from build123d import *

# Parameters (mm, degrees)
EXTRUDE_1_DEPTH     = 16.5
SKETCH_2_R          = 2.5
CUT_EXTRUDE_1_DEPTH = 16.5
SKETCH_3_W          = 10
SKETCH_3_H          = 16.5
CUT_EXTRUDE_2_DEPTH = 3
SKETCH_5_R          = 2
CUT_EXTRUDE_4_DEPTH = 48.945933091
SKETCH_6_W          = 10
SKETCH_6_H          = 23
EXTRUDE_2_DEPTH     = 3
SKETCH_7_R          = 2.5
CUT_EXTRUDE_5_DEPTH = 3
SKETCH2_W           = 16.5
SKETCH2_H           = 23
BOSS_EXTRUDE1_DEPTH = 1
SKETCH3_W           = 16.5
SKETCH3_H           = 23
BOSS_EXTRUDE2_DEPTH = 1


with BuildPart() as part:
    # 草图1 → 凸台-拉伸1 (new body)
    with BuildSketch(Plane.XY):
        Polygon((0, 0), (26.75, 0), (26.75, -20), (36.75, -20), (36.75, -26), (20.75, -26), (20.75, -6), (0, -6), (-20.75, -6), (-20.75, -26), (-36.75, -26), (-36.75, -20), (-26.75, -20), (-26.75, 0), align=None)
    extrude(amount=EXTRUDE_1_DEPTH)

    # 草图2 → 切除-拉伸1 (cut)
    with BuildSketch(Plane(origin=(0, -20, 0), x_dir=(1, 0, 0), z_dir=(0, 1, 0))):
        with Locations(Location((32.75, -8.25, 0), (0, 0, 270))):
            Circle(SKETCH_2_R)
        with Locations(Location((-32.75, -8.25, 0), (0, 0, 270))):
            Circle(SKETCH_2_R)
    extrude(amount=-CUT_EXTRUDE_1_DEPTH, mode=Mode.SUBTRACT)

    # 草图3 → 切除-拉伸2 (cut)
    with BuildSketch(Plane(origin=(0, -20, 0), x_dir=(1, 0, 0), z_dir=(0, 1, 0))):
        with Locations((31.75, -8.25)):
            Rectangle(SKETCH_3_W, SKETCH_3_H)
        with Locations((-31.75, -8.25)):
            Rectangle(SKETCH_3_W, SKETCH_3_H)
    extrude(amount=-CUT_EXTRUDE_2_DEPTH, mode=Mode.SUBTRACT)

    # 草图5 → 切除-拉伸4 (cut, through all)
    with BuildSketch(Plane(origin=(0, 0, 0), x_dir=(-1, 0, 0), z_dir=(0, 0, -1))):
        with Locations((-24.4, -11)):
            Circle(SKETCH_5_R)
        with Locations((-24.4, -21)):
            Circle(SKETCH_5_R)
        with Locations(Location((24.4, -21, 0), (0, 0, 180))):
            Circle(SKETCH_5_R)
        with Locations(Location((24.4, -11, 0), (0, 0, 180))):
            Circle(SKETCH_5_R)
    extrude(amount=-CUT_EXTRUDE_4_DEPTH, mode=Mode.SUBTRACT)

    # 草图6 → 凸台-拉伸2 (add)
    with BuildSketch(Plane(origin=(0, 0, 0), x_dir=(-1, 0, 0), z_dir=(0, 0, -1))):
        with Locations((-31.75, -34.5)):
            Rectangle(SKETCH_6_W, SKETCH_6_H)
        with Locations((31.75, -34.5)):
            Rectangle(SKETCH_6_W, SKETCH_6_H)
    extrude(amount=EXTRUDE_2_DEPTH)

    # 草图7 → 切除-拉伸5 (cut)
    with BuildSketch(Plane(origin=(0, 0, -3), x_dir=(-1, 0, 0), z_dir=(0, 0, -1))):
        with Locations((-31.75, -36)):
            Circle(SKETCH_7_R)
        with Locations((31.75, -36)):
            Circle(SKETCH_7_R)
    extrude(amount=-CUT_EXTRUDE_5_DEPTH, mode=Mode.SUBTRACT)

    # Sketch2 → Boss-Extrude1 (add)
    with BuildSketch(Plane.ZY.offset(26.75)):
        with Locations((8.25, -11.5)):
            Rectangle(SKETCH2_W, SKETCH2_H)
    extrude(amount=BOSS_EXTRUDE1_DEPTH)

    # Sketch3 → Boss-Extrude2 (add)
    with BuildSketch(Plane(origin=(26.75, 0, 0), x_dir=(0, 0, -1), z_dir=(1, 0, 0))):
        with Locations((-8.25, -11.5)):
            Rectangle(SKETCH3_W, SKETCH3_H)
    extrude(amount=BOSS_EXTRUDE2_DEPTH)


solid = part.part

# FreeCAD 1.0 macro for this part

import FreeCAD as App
import Part
import Sketcher
from FreeCAD import Vector
Q = App.Units.Quantity


def add_polygon(sketch, points):
    """Adds a closed chain of lines whose ends are joined by coincident constraints."""
    first, n = sketch.GeometryCount, len(points)
    for a, b in zip(points, points[1:] + points[:1]):
        sketch.addGeometry(Part.LineSegment(App.Vector(*a, 0), App.Vector(*b, 0)), False)
    for i in range(n):
        sketch.addConstraint(Sketcher.Constraint("Coincident", first + i, 2, first + (i + 1) % n, 1))

doc = App.newDocument("Part")
body = doc.addObject("PartDesign::Body", "Body")

sketch1 = body.newObject("Sketcher::SketchObject", "Sketch")
sketch1.AttachmentSupport = (doc.getObject("XY_Plane"), [""])
sketch1.MapMode = "FlatFace"
add_polygon(sketch1, [(27, 0), (-27, 0), (-27, -20), (-37, -20), (-37, -26), (-21, -26), (-21, -6), (21, -6), (21, -26), (37, -26), (37, -20), (27, -20)])
sketch1.addConstraint([
    Sketcher.Constraint("Horizontal", 0),
    Sketcher.Constraint("Vertical", 1),
    Sketcher.Constraint("Horizontal", 2),
    Sketcher.Constraint("Vertical", 3),
    Sketcher.Constraint("Horizontal", 4),
    Sketcher.Constraint("Vertical", 5),
    Sketcher.Constraint("Horizontal", 6),
    Sketcher.Constraint("Vertical", 7),
    Sketcher.Constraint("Horizontal", 8),
    Sketcher.Constraint("Vertical", 9),
    Sketcher.Constraint("Horizontal", 10),
    Sketcher.Constraint("Vertical", 11),
    Sketcher.Constraint("Symmetric", 0, 2, 11, 2, -1, 1),
    Sketcher.Constraint("Symmetric", 4, 2, 7, 2, -2),
    Sketcher.Constraint("Symmetric", 2, 2, 9, 2, -2),
    Sketcher.Constraint("Equal", 1, 5),
    Sketcher.Constraint("DistanceX", 2, 2, 2, 1, Q("10 mm")),
    Sketcher.Constraint("DistanceX", 4, 1, 4, 2, Q("16 mm")),
    Sketcher.Constraint("DistanceY", 1, 2, 1, 1, Q("20 mm")),
    Sketcher.Constraint("DistanceY", 3, 2, 3, 1, Q("6 mm")),
    Sketcher.Constraint("DistanceX", 0, 2, 0, 1, Q("53.5 mm")),
])
pad1 = body.newObject("PartDesign::Pad", "Pad")
pad1.Profile = sketch1
pad1.Length = 16.5

sketch2 = body.newObject("Sketcher::SketchObject", "Sketch001")
sketch2.AttachmentSupport = (doc.getObject("XZ_Plane"), [""])
sketch2.MapMode = "FlatFace"
sketch2.AttachmentOffset = App.Placement(Vector(0, 0, 20), App.Rotation())
sketch2.addGeometry([
    Part.Circle(Vector(32.8, 8.2, 0), Vector(0, 0, 1), 2.5),
    Part.Circle(Vector(-32.8, 8.2, 0), Vector(0, 0, 1), 2.5),
], False)
sketch2.addConstraint([
    Sketcher.Constraint("Equal", 0, 1),
    Sketcher.Constraint("Symmetric", 0, 3, 1, 3, -2),
    Sketcher.Constraint("Diameter", 0, Q("5 mm")),
    Sketcher.Constraint("DistanceX", 1, 3, 0, 3, Q("65.5 mm")),
    Sketcher.Constraint("DistanceY", -1, 1, 0, 3, Q("8.25 mm")),
])
pocket1 = body.newObject("PartDesign::Pocket", "Pocket")
pocket1.Profile = sketch2
pocket1.Length = 16.5
pocket1.Reversed = True

sketch3 = body.newObject("Sketcher::SketchObject", "Sketch002")
sketch3.AttachmentSupport = (doc.getObject("XZ_Plane"), [""])
sketch3.MapMode = "FlatFace"
sketch3.AttachmentOffset = App.Placement(Vector(0, 0, 20), App.Rotation())
add_polygon(sketch3, [(27, 0), (27, 16), (37, 16), (37, 0)])
add_polygon(sketch3, [(-37, 0), (-37, 16), (-27, 16), (-27, 0)])
sketch3.addConstraint([
    Sketcher.Constraint("Vertical", 0),
    Sketcher.Constraint("Horizontal", 1),
    Sketcher.Constraint("Vertical", 2),
    Sketcher.Constraint("Horizontal", 3),
    Sketcher.Constraint("Vertical", 4),
    Sketcher.Constraint("Horizontal", 5),
    Sketcher.Constraint("Vertical", 6),
    Sketcher.Constraint("Horizontal", 7),
    Sketcher.Constraint("Symmetric", 3, 2, 6, 2, -1, 1),
    Sketcher.Constraint("Symmetric", 1, 2, 4, 2, -2),
    Sketcher.Constraint("PointOnObject", 2, 2, -1),
    Sketcher.Constraint("DistanceX", 1, 1, 1, 2, Q("10 mm")),
    Sketcher.Constraint("DistanceY", 0, 1, 0, 2, Q("16.5 mm")),
    Sketcher.Constraint("DistanceX", 4, 2, 0, 2, Q("63.5 mm")),
])
pocket2 = body.newObject("PartDesign::Pocket", "Pocket001")
pocket2.Profile = sketch3
pocket2.Length = 3
pocket2.Reversed = True

sketch4 = body.newObject("Sketcher::SketchObject", "Sketch003")
sketch4.AttachmentSupport = (doc.getObject("XY_Plane"), [""])
sketch4.MapMode = "FlatFace"
sketch4.addGeometry([
    Part.Circle(Vector(24.4, -11, 0), Vector(0, 0, 1), 2),
    Part.Circle(Vector(24.4, -21, 0), Vector(0, 0, 1), 2),
    Part.Circle(Vector(-24.4, -21, 0), Vector(0, 0, 1), 2),
    Part.Circle(Vector(-24.4, -11, 0), Vector(0, 0, 1), 2),
], False)
sketch4.addConstraint([
    Sketcher.Constraint("Equal", 0, 1),
    Sketcher.Constraint("Equal", 1, 2),
    Sketcher.Constraint("Equal", 2, 3),
    Sketcher.Constraint("Symmetric", 1, 3, 2, 3, -2),
    Sketcher.Constraint("Symmetric", 0, 3, 3, 3, -2),
    Sketcher.Constraint("Vertical", 0, 3, 1, 3),
    Sketcher.Constraint("Diameter", 0, Q("4 mm")),
    Sketcher.Constraint("DistanceY", 0, 3, -1, 1, Q("11 mm")),
    Sketcher.Constraint("DistanceY", 1, 3, -1, 1, Q("21 mm")),
    Sketcher.Constraint("DistanceX", -1, 1, 0, 3, Q("24.4 mm")),
])
pocket3 = body.newObject("PartDesign::Pocket", "Pocket002")
pocket3.Profile = sketch4
pocket3.Type = "ThroughAll"
pocket3.Reversed = True

sketch5 = body.newObject("Sketcher::SketchObject", "Sketch004")
sketch5.AttachmentSupport = (doc.getObject("XY_Plane"), [""])
sketch5.MapMode = "FlatFace"
add_polygon(sketch5, [(37, -23), (37, -46), (27, -46), (27, -23)])
add_polygon(sketch5, [(-27, -23), (-27, -46), (-37, -46), (-37, -23)])
sketch5.addConstraint([
    Sketcher.Constraint("Vertical", 0),
    Sketcher.Constraint("Horizontal", 1),
    Sketcher.Constraint("Vertical", 2),
    Sketcher.Constraint("Horizontal", 3),
    Sketcher.Constraint("Vertical", 4),
    Sketcher.Constraint("Horizontal", 5),
    Sketcher.Constraint("Vertical", 6),
    Sketcher.Constraint("Horizontal", 7),
    Sketcher.Constraint("Symmetric", 1, 2, 4, 2, -2),
    Sketcher.Constraint("Symmetric", 3, 2, 6, 2, -2),
    Sketcher.Constraint("DistanceX", 1, 2, 1, 1, Q("10 mm")),
    Sketcher.Constraint("DistanceY", 0, 2, 0, 1, Q("23 mm")),
    Sketcher.Constraint("DistanceY", 0, 2, -1, 1, Q("46 mm")),
    Sketcher.Constraint("DistanceX", 4, 2, 1, 2, Q("53.5 mm")),
])
pad2 = body.newObject("PartDesign::Pad", "Pad001")
pad2.Profile = sketch5
pad2.Length = 3
pad2.Reversed = True

sketch6 = body.newObject("Sketcher::SketchObject", "Sketch005")
sketch6.AttachmentSupport = (doc.getObject("XY_Plane"), [""])
sketch6.MapMode = "FlatFace"
sketch6.AttachmentOffset = App.Placement(Vector(0, 0, -3), App.Rotation())
sketch6.addGeometry([
    Part.Circle(Vector(31.8, -36, 0), Vector(0, 0, 1), 2.5),
    Part.Circle(Vector(-31.8, -36, 0), Vector(0, 0, 1), 2.5),
], False)
sketch6.addConstraint([
    Sketcher.Constraint("Equal", 0, 1),
    Sketcher.Constraint("Symmetric", 0, 3, 1, 3, -2),
    Sketcher.Constraint("Diameter", 0, Q("5 mm")),
    Sketcher.Constraint("DistanceY", 0, 3, -1, 1, Q("36 mm")),
    Sketcher.Constraint("DistanceX", 1, 3, 0, 3, Q("63.5 mm")),
])
pocket4 = body.newObject("PartDesign::Pocket", "Pocket003")
pocket4.Profile = sketch6
pocket4.Length = 3
pocket4.Reversed = True

sketch7 = body.newObject("Sketcher::SketchObject", "Sketch006")
sketch7.AttachmentSupport = (doc.getObject("YZ_Plane"), [""])
sketch7.MapMode = "FlatFace"
sketch7.AttachmentOffset = App.Placement(Vector(0, 0, -26.75), App.Rotation())
add_polygon(sketch7, [(0, 0), (-23, 0), (-23, 16), (0, 16)])
sketch7.addConstraint([
    Sketcher.Constraint("Horizontal", 0),
    Sketcher.Constraint("Vertical", 1),
    Sketcher.Constraint("Horizontal", 2),
    Sketcher.Constraint("Vertical", 3),
    Sketcher.Constraint("Coincident", 3, 2, -1, 1),
    Sketcher.Constraint("DistanceX", 0, 2, 0, 1, Q("23 mm")),
    Sketcher.Constraint("DistanceY", 1, 1, 1, 2, Q("16.5 mm")),
])
pad3 = body.newObject("PartDesign::Pad", "Pad002")
pad3.Profile = sketch7
pad3.Length = 1
pad3.Reversed = True

sketch8 = body.newObject("Sketcher::SketchObject", "Sketch007")
sketch8.AttachmentSupport = (doc.getObject("YZ_Plane"), [""])
sketch8.MapMode = "FlatFace"
sketch8.AttachmentOffset = App.Placement(Vector(0, 0, 26.75), App.Rotation())
add_polygon(sketch8, [(0, 16), (-23, 16), (-23, 0), (0, 0)])
sketch8.addConstraint([
    Sketcher.Constraint("Horizontal", 0),
    Sketcher.Constraint("Vertical", 1),
    Sketcher.Constraint("Horizontal", 2),
    Sketcher.Constraint("Vertical", 3),
    Sketcher.Constraint("Coincident", 2, 2, -1, 1),
    Sketcher.Constraint("DistanceX", 0, 2, 0, 1, Q("23 mm")),
    Sketcher.Constraint("DistanceY", 1, 2, 1, 1, Q("16.5 mm")),
])
pad4 = body.newObject("PartDesign::Pad", "Pad003")
pad4.Profile = sketch8
pad4.Length = 1

doc.recompute()
